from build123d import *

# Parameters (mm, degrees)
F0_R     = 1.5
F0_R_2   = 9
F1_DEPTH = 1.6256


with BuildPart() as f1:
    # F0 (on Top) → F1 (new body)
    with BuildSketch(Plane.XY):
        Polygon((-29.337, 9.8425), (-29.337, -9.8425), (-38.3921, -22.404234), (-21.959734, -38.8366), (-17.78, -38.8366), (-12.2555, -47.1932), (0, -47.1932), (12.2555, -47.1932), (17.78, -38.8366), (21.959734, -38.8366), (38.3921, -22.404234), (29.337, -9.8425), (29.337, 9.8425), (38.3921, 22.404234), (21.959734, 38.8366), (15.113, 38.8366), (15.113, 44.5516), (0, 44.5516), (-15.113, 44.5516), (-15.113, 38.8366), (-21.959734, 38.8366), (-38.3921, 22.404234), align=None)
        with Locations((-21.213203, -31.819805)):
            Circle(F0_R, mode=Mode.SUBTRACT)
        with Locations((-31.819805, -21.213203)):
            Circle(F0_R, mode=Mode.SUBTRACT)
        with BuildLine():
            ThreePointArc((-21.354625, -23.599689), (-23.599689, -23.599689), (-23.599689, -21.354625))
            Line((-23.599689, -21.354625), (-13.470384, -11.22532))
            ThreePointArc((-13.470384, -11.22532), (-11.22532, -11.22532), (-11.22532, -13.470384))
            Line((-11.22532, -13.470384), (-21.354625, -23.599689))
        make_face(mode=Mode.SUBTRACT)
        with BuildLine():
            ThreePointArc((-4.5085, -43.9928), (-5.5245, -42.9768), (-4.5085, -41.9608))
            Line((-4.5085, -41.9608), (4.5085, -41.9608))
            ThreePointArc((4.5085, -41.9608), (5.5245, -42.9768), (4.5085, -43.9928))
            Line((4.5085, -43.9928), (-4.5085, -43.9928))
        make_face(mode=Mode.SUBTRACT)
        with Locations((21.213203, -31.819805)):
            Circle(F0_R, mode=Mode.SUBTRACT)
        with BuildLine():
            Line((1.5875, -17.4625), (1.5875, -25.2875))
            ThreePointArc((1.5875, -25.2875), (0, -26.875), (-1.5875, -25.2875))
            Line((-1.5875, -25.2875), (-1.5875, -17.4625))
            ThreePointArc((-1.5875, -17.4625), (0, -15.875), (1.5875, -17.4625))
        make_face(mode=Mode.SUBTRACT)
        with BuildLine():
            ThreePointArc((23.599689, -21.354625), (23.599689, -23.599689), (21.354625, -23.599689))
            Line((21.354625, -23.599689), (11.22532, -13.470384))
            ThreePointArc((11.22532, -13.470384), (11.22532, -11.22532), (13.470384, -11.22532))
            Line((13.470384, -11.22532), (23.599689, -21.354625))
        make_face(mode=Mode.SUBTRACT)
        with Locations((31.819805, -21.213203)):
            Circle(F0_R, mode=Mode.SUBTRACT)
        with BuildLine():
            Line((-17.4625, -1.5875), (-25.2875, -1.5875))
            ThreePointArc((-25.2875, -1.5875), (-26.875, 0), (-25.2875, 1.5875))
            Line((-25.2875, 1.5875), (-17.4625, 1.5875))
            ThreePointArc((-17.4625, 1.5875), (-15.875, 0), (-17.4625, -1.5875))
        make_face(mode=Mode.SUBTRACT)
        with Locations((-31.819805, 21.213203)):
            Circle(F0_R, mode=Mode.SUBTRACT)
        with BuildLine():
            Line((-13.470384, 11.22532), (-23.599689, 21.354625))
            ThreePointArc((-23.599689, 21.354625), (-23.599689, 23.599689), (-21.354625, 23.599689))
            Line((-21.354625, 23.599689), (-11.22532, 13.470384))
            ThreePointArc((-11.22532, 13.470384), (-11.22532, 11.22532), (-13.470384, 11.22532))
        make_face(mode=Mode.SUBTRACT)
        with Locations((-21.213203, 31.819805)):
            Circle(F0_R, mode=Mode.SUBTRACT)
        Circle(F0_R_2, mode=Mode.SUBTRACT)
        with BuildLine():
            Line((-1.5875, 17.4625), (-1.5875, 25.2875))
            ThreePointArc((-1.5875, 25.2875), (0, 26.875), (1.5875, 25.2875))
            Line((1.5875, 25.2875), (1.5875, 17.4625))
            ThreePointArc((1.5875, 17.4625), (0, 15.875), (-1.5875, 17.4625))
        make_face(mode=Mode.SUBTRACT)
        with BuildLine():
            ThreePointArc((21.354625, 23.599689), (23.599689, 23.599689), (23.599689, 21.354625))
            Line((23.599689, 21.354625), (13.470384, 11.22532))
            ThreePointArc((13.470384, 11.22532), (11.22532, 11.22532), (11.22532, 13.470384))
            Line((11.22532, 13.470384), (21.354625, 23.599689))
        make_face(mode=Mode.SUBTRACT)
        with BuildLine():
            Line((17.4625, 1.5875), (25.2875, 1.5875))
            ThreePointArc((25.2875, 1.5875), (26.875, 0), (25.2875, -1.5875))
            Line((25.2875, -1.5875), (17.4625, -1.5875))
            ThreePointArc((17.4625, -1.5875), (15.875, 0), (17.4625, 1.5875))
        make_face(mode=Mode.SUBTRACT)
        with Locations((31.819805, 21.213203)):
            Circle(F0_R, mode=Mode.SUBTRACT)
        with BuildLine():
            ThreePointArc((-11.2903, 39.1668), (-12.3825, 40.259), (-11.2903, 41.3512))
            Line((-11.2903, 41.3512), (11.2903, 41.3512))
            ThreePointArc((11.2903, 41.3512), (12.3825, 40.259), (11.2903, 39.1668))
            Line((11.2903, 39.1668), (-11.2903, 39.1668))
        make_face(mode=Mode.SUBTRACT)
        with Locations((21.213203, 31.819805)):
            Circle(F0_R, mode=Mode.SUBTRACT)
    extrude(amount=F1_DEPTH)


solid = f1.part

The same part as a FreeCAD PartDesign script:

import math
import FreeCAD as App
import Part
import Sketcher
from FreeCAD import Vector
Q = App.Units.Quantity


def add_polygon(sketch, points):
    """Adds a closed chain of lines whose ends are joined by coincident constraints."""
    first, n = sketch.GeometryCount, len(points)
    for a, b in zip(points, points[1:] + points[:1]):
        sketch.addGeometry(Part.LineSegment(App.Vector(*a, 0), App.Vector(*b, 0)), False)
    for i in range(n):
        sketch.addConstraint(Sketcher.Constraint("Coincident", first + i, 2, first + (i + 1) % n, 1))

doc = App.newDocument("Part")
body = doc.addObject("PartDesign::Body", "Body")

sketch1 = doc.addObject("Sketcher::SketchObject", "Sketch")
body.addObject(sketch1)
sketch1.AttachmentSupport = (doc.XY_Plane, [""])
sketch1.MapMode = "FlatFace"
add_polygon(sketch1, [(-29.3, 9.8), (-29.3, -9.8), (-38.4, -22.4), (-22, -38.8), (-17.8, -38.8), (-12.3, -47.2), (12.3, -47.2), (17.8, -38.8), (22, -38.8), (38.4, -22.4), (29.3, -9.8), (29.3, 9.8), (38.4, 22.4), (22, 38.8), (15.1, 38.8), (15.1, 44.6), (-15.1, 44.6), (-15.1, 38.8), (-22, 38.8), (-38.4, 22.4)])
sketch1.addGeometry(Part.Circle(Vector(-21.2, -31.8, 0), Vector(0, 0, 1), 1.5), False)
sketch1.addGeometry(Part.Circle(Vector(-31.8, -21.2, 0), Vector(0, 0, 1), 1.5), False)
sketch1.addGeometry(Part.LineSegment(Vector(-11.2, -13.5, 0), Vector(-21.4, -23.6, 0)), False)
sketch1.addGeometry(Part.ArcOfCircle(Part.Circle(Vector(-22.5, -22.5, 0), Vector(0, 0, 1), 1.6), math.radians(135), math.radians(315)), False)
sketch1.addGeometry(Part.LineSegment(Vector(-23.6, -21.4, 0), Vector(-13.5, -11.2, 0)), False)
sketch1.addGeometry(Part.ArcOfCircle(Part.Circle(Vector(-12.3, -12.3, 0), Vector(0, 0, 1), 1.6), math.radians(-45), math.radians(135)), False)
sketch1.addGeometry(Part.LineSegment(Vector(4.5, -44, 0), Vector(-4.5, -44, 0)), False)
sketch1.addGeometry(Part.ArcOfCircle(Part.Circle(Vector(-4.5, -43, 0), Vector(0, 0, 1), 1), math.radians(90), math.radians(270)), False)
sketch1.addGeometry(Part.LineSegment(Vector(-4.5, -42, 0), Vector(4.5, -42, 0)), False)
sketch1.addGeometry(Part.ArcOfCircle(Part.Circle(Vector(4.5, -43, 0), Vector(0, 0, 1), 1), math.radians(-90), math.radians(90)), False)
sketch1.addGeometry(Part.Circle(Vector(21.2, -31.8, 0), Vector(0, 0, 1), 1.5), False)
sketch1.addGeometry(Part.ArcOfCircle(Part.Circle(Vector(0, -17.5, 0), Vector(0, 0, 1), 1.6), math.radians(0), math.radians(180)), False)
sketch1.addGeometry(Part.LineSegment(Vector(1.6, -17.5, 0), Vector(1.6, -25.3, 0)), False)
sketch1.addGeometry(Part.ArcOfCircle(Part.Circle(Vector(0, -25.3, 0), Vector(0, 0, 1), 1.6), math.radians(180), math.radians(360)), False)
sketch1.addGeometry(Part.LineSegment(Vector(-1.6, -25.3, 0), Vector(-1.6, -17.5, 0)), False)
sketch1.addGeometry(Part.LineSegment(Vector(13.5, -11.2, 0), Vector(23.6, -21.4, 0)), False)
sketch1.addGeometry(Part.ArcOfCircle(Part.Circle(Vector(22.5, -22.5, 0), Vector(0, 0, 1), 1.6), math.radians(-135), math.radians(45)), False)
sketch1.addGeometry(Part.LineSegment(Vector(21.4, -23.6, 0), Vector(11.2, -13.5, 0)), False)
sketch1.addGeometry(Part.ArcOfCircle(Part.Circle(Vector(12.3, -12.3, 0), Vector(0, 0, 1), 1.6), math.radians(45), math.radians(225)), False)
sketch1.addGeometry(Part.Circle(Vector(31.8, -21.2, 0), Vector(0, 0, 1), 1.5), False)
sketch1.addGeometry(Part.ArcOfCircle(Part.Circle(Vector(-17.5, 0, 0), Vector(0, 0, 1), 1.6), math.radians(-90), math.radians(90)), False)
sketch1.addGeometry(Part.LineSegment(Vector(-17.5, -1.6, 0), Vector(-25.3, -1.6, 0)), False)
sketch1.addGeometry(Part.ArcOfCircle(Part.Circle(Vector(-25.3, 0, 0), Vector(0, 0, 1), 1.6), math.radians(90), math.radians(270)), False)
sketch1.addGeometry(Part.LineSegment(Vector(-25.3, 1.6, 0), Vector(-17.5, 1.6, 0)), False)
sketch1.addGeometry(Part.ArcOfCircle(Part.Circle(Vector(-12.3, 12.3, 0), Vector(0, 0, 1), 1.6), math.radians(-135), math.radians(45)), False)
sketch1.addGeometry(Part.LineSegment(Vector(-13.5, 11.2, 0), Vector(-23.6, 21.4, 0)), False)
sketch1.addGeometry(Part.ArcOfCircle(Part.Circle(Vector(-22.5, 22.5, 0), Vector(0, 0, 1), 1.6), math.radians(45), math.radians(225)), False)
sketch1.addGeometry(Part.LineSegment(Vector(-21.4, 23.6, 0), Vector(-11.2, 13.5, 0)), False)
sketch1.addGeometry(Part.Circle(Vector(-31.8, 21.2, 0), Vector(0, 0, 1), 1.5), False)
sketch1.addGeometry(Part.Circle(Vector(-21.2, 31.8, 0), Vector(0, 0, 1), 1.5), False)
sketch1.addGeometry(Part.Circle(Vector(0, 0, 0), Vector(0, 0, 1), 9), False)
sketch1.addGeometry(Part.ArcOfCircle(Part.Circle(Vector(17.5, 0, 0), Vector(0, 0, 1), 1.6), math.radians(90), math.radians(270)), False)
sketch1.addGeometry(Part.LineSegment(Vector(17.5, 1.6, 0), Vector(25.3, 1.6, 0)), False)
sketch1.addGeometry(Part.ArcOfCircle(Part.Circle(Vector(25.3, 0, 0), Vector(0, 0, 1), 1.6), math.radians(-90), math.radians(90)), False)
sketch1.addGeometry(Part.LineSegment(Vector(25.3, -1.6, 0), Vector(17.5, -1.6, 0)), False)
sketch1.addGeometry(Part.LineSegment(Vector(11.2, 13.5, 0), Vector(21.4, 23.6, 0)), False)
sketch1.addGeometry(Part.ArcOfCircle(Part.Circle(Vector(22.5, 22.5, 0), Vector(0, 0, 1), 1.6), math.radians(-45), math.radians(135)), False)
sketch1.addGeometry(Part.LineSegment(Vector(23.6, 21.4, 0), Vector(13.5, 11.2, 0)), False)
sketch1.addGeometry(Part.ArcOfCircle(Part.Circle(Vector(12.3, 12.3, 0), Vector(0, 0, 1), 1.6), math.radians(135), math.radians(315)), False)
sketch1.addGeometry(Part.ArcOfCircle(Part.Circle(Vector(0, 17.5, 0), Vector(0, 0, 1), 1.6), math.radians(180), math.radians(360)), False)
sketch1.addGeometry(Part.LineSegment(Vector(-1.6, 17.5, 0), Vector(-1.6, 25.3, 0)), False)
sketch1.addGeometry(Part.ArcOfCircle(Part.Circle(Vector(0, 25.3, 0), Vector(0, 0, 1), 1.6), math.radians(0), math.radians(180)), False)
sketch1.addGeometry(Part.LineSegment(Vector(1.6, 25.3, 0), Vector(1.6, 17.5, 0)), False)
sketch1.addGeometry(Part.LineSegment(Vector(11.3, 39.2, 0), Vector(-11.3, 39.2, 0)), False)
sketch1.addGeometry(Part.ArcOfCircle(Part.Circle(Vector(-11.3, 40.3, 0), Vector(0, 0, 1), 1.1), math.radians(90), math.radians(270)), False)
sketch1.addGeometry(Part.LineSegment(Vector(-11.3, 41.4, 0), Vector(11.3, 41.4, 0)), False)
sketch1.addGeometry(Part.ArcOfCircle(Part.Circle(Vector(11.3, 40.3, 0), Vector(0, 0, 1), 1.1), math.radians(-90), math.radians(90)), False)
sketch1.addGeometry(Part.Circle(Vector(31.8, 21.2, 0), Vector(0, 0, 1), 1.5), False)
sketch1.addGeometry(Part.Circle(Vector(21.2, 31.8, 0), Vector(0, 0, 1), 1.5), False)
sketch1.addConstraint([
    Sketcher.Constraint("Tangent", 22, 2, 23, 2),
    Sketcher.Constraint("Tangent", 23, 1, 24, 1),
    Sketcher.Constraint("Tangent", 24, 2, 25, 2),
    Sketcher.Constraint("Tangent", 25, 1, 22, 1),
    Sketcher.Constraint("Tangent", 26, 2, 27, 2),
    Sketcher.Constraint("Tangent", 27, 1, 28, 1),
    Sketcher.Constraint("Tangent", 28, 2, 29, 2),
    Sketcher.Constraint("Tangent", 29, 1, 26, 1),
    Sketcher.Constraint("Tangent", 31, 1, 32, 1),
    Sketcher.Constraint("Tangent", 32, 2, 33, 2),
    Sketcher.Constraint("Tangent", 33, 1, 34, 1),
    Sketcher.Constraint("Tangent", 34, 2, 31, 2),
    Sketcher.Constraint("Tangent", 35, 2, 36, 2),
    Sketcher.Constraint("Tangent", 36, 1, 37, 1),
    Sketcher.Constraint("Tangent", 37, 2, 38, 2),
    Sketcher.Constraint("Tangent", 38, 1, 35, 1),
    Sketcher.Constraint("Tangent", 40, 1, 41, 1),
    Sketcher.Constraint("Tangent", 41, 2, 42, 2),
    Sketcher.Constraint("Tangent", 42, 1, 43, 1),
    Sketcher.Constraint("Tangent", 43, 2, 40, 2),
    Sketcher.Constraint("Tangent", 44, 1, 45, 1),
    Sketcher.Constraint("Tangent", 45, 2, 46, 2),
    Sketcher.Constraint("Tangent", 46, 1, 47, 1),
    Sketcher.Constraint("Tangent", 47, 2, 44, 2),
    Sketcher.Constraint("Tangent", 51, 1, 52, 1),
    Sketcher.Constraint("Tangent", 52, 2, 53, 2),
    Sketcher.Constraint("Tangent", 53, 1, 54, 1),
    Sketcher.Constraint("Tangent", 54, 2, 51, 2),
    Sketcher.Constraint("Tangent", 55, 2, 56, 2),
    Sketcher.Constraint("Tangent", 56, 1, 57, 1),
    Sketcher.Constraint("Tangent", 57, 2, 58, 2),
    Sketcher.Constraint("Tangent", 58, 1, 55, 1),
    Sketcher.Constraint("Tangent", 59, 1, 60, 1),
    Sketcher.Constraint("Tangent", 60, 2, 61, 2),
    Sketcher.Constraint("Tangent", 61, 1, 62, 1),
    Sketcher.Constraint("Tangent", 62, 2, 59, 2),
    Sketcher.Constraint("Tangent", 63, 2, 64, 2),
    Sketcher.Constraint("Tangent", 64, 1, 65, 1),
    Sketcher.Constraint("Tangent", 65, 2, 66, 2),
    Sketcher.Constraint("Tangent", 66, 1, 63, 1),
    Sketcher.Constraint("Vertical", 0),
    Sketcher.Constraint("Horizontal", 3),
    Sketcher.Constraint("Horizontal", 5),
    Sketcher.Constraint("Horizontal", 7),
    Sketcher.Constraint("Vertical", 10),
    Sketcher.Constraint("Horizontal", 13),
    Sketcher.Constraint("Vertical", 14),
    Sketcher.Constraint("Horizontal", 15),
    Sketcher.Constraint("Vertical", 16),
    Sketcher.Constraint("Horizontal", 17),
    Sketcher.Constraint("Horizontal", 26),
    Sketcher.Constraint("Horizontal", 28),
    Sketcher.Constraint("Vertical", 32),
    Sketcher.Constraint("Vertical", 34),
    Sketcher.Constraint("Horizontal", 41),
    Sketcher.Constraint("Horizontal", 43),
    Sketcher.Constraint("Horizontal", 52),
    Sketcher.Constraint("Horizontal", 54),
    Sketcher.Constraint("Vertical", 60),
    Sketcher.Constraint("Vertical", 62),
    Sketcher.Constraint("Horizontal", 63),
    Sketcher.Constraint("Horizontal", 65),
    Sketcher.Constraint("Coincident", 50, 3, -1, 1),
    Sketcher.Constraint("Equal", 20, 21),
    Sketcher.Constraint("Equal", 23, 25),
    Sketcher.Constraint("Equal", 21, 30),
    Sketcher.Constraint("Equal", 25, 31),
    Sketcher.Constraint("Equal", 33, 36),
    Sketcher.Constraint("Equal", 36, 38),
    Sketcher.Constraint("Equal", 30, 39),
    Sketcher.Constraint("Equal", 38, 40),
    Sketcher.Constraint("Equal", 42, 44),
    Sketcher.Constraint("Equal", 44, 46),
    Sketcher.Constraint("Equal", 39, 48),
    Sketcher.Constraint("Equal", 48, 49),
    Sketcher.Constraint("Equal", 46, 51),
    Sketcher.Constraint("Equal", 53, 56),
    Sketcher.Constraint("Equal", 56, 58),
    Sketcher.Constraint("Equal", 58, 59),
    Sketcher.Constraint("Equal", 49, 67),
    Sketcher.Constraint("Equal", 67, 68),
    Sketcher.Constraint("Symmetric", 38, 3, 44, 3, -1, 1),
    Sketcher.Constraint("Symmetric", 36, 3, 46, 3, -1, 1),
    Sketcher.Constraint("Symmetric", 39, 3, 48, 3, -1, 1),
    Sketcher.Constraint("Symmetric", 30, 3, 49, 3, -1, 1),
    Sketcher.Constraint("Symmetric", 40, 3, 51, 3, -1, 1),
    Sketcher.Constraint("Symmetric", 23, 3, 56, 3, -1, 1),
    Sketcher.Constraint("Symmetric", 25, 3, 58, 3, -1, 1),
    Sketcher.Constraint("Symmetric", 31, 3, 59, 3, -1, 1),
    Sketcher.Constraint("Symmetric", 21, 3, 67, 3, -1, 1),
    Sketcher.Constraint("Symmetric", 20, 3, 68, 3, -1, 1),
    Sketcher.Constraint("Symmetric", 0, 2, 10, 2, -1, 1),
    Sketcher.Constraint("Symmetric", 1, 2, 11, 2, -1, 1),
    Sketcher.Constraint("Symmetric", 2, 2, 12, 2, -1, 1),
    Sketcher.Constraint("Symmetric", 7, 2, 17, 2, -1, 1),
    Sketcher.Constraint("Symmetric", 8, 2, 18, 2, -1, 1),
    Sketcher.Constraint("Symmetric", 20, 3, 30, 3, -2),
    Sketcher.Constraint("Symmetric", 23, 3, 36, 3, -2),
    Sketcher.Constraint("Symmetric", 25, 3, 38, 3, -2),
    Sketcher.Constraint("Symmetric", 21, 3, 39, 3, -2),
    Sketcher.Constraint("Symmetric", 42, 3, 53, 3, -2),
    Sketcher.Constraint("Symmetric", 3, 2, 6, 2, -2),
    Sketcher.Constraint("Symmetric", 1, 2, 8, 2, -2),
    Sketcher.Constraint("Symmetric", 33, 3, 61, 3, -1),
    Sketcher.Constraint("Perpendicular", 2, 8),
    Sketcher.Constraint("Parallel", 9, 19),
    Sketcher.Constraint("Parallel", 18, 22),
    Sketcher.Constraint("Perpendicular", 24, 35),
    Sketcher.Constraint("Horizontal", 0, 2, 9, 2),
    Sketcher.Constraint("Equal", 13, 17),
    Sketcher.Constraint("Equal", 54, 32),
    Sketcher.Constraint("Equal", 4, 6),
    Sketcher.Constraint("Radius", 27, Q("0.04 in")),
    Sketcher.Constraint("Radius", 23, Q("0.0625 in")),
    Sketcher.Constraint("Radius", 64, Q("0.043 in")),
    Sketcher.Constraint("DistanceX", 15, 2, 15, 1, Q("1.19 in")),
    Sketcher.Constraint("DistanceX", 3, 2, -1, 1, Q("0.7 in")),
    Sketcher.Constraint("Diameter", 20, 3.0),
    Sketcher.Constraint("Diameter", 50, 18.0),
    Sketcher.Constraint("DistanceX", 5, 1, 5, 2, Q("0.965 in")),
    Sketcher.Constraint("DistanceX", 26, 2, 26, 1, Q("0.355 in")),
    Sketcher.Constraint("DistanceX", 63, 2, 63, 1, Q("0.889 in")),
    Sketcher.Constraint("DistanceY", 0, 2, 0, 1, Q("0.775 in")),
    Sketcher.Constraint("DistanceY", 14, 1, 14, 2, Q("0.225 in")),
    Sketcher.Constraint("DistanceY", 27, 3, -1, 1, Q("1.692 in")),
    Sketcher.Constraint("DistanceY", 31, 3, -1, 1, Q("0.6875 in")),
    Sketcher.Constraint("DistanceX", 40, 3, -1, 1, Q("0.6875 in")),
    Sketcher.Constraint("DistanceY", -1, 1, 64, 3, Q("1.585 in")),
    Sketcher.Constraint("DistanceX", 0, 2, -1, 1, Q("1.155 in")),
    Sketcher.Constraint("DistanceY", 2, 2, -1, 1, Q("1.529 in")),
    Sketcher.Constraint("DistanceY", 4, 2, -1, 1, Q("1.858 in")),
    Sketcher.Constraint("DistanceX", 41, 2, 41, 1, 7.825),
    Sketcher.Constraint("DistanceX", 27, 3, -1, 1, Q("0.1775 in")),
    Sketcher.Constraint("DistanceX", 64, 3, -1, 1, Q("0.4445 in")),
    Sketcher.Constraint("DistanceX", 1, 2, -1, 1, Q("1.5115 in")),
    Sketcher.Constraint("Distance", 22, 14.325001),
    Sketcher.Constraint("Distance", 1, 15.485219),
    Sketcher.Constraint("DistanceY", 22, 2, -1, 1, 23.599689),
    Sketcher.Constraint("DistanceX", 23, 1, -1, 1, 23.599689),
    Sketcher.Constraint("DistanceX", 20, 3, -1, 1, 21.213203),
    Sketcher.Constraint("DistanceY", 20, 3, -1, 1, 31.819805),
    Sketcher.Constraint("DistanceX", 21, 3, -1, 1, 31.819805),
    Sketcher.Constraint("DistanceY", 21, 3, -1, 1, 21.213203),
])
pad1 = doc.addObject("PartDesign::Pad", "Pad")
body.addObject(pad1)
pad1.Profile = sketch1
pad1.Length = Q("0.064 in")

doc.recompute()
